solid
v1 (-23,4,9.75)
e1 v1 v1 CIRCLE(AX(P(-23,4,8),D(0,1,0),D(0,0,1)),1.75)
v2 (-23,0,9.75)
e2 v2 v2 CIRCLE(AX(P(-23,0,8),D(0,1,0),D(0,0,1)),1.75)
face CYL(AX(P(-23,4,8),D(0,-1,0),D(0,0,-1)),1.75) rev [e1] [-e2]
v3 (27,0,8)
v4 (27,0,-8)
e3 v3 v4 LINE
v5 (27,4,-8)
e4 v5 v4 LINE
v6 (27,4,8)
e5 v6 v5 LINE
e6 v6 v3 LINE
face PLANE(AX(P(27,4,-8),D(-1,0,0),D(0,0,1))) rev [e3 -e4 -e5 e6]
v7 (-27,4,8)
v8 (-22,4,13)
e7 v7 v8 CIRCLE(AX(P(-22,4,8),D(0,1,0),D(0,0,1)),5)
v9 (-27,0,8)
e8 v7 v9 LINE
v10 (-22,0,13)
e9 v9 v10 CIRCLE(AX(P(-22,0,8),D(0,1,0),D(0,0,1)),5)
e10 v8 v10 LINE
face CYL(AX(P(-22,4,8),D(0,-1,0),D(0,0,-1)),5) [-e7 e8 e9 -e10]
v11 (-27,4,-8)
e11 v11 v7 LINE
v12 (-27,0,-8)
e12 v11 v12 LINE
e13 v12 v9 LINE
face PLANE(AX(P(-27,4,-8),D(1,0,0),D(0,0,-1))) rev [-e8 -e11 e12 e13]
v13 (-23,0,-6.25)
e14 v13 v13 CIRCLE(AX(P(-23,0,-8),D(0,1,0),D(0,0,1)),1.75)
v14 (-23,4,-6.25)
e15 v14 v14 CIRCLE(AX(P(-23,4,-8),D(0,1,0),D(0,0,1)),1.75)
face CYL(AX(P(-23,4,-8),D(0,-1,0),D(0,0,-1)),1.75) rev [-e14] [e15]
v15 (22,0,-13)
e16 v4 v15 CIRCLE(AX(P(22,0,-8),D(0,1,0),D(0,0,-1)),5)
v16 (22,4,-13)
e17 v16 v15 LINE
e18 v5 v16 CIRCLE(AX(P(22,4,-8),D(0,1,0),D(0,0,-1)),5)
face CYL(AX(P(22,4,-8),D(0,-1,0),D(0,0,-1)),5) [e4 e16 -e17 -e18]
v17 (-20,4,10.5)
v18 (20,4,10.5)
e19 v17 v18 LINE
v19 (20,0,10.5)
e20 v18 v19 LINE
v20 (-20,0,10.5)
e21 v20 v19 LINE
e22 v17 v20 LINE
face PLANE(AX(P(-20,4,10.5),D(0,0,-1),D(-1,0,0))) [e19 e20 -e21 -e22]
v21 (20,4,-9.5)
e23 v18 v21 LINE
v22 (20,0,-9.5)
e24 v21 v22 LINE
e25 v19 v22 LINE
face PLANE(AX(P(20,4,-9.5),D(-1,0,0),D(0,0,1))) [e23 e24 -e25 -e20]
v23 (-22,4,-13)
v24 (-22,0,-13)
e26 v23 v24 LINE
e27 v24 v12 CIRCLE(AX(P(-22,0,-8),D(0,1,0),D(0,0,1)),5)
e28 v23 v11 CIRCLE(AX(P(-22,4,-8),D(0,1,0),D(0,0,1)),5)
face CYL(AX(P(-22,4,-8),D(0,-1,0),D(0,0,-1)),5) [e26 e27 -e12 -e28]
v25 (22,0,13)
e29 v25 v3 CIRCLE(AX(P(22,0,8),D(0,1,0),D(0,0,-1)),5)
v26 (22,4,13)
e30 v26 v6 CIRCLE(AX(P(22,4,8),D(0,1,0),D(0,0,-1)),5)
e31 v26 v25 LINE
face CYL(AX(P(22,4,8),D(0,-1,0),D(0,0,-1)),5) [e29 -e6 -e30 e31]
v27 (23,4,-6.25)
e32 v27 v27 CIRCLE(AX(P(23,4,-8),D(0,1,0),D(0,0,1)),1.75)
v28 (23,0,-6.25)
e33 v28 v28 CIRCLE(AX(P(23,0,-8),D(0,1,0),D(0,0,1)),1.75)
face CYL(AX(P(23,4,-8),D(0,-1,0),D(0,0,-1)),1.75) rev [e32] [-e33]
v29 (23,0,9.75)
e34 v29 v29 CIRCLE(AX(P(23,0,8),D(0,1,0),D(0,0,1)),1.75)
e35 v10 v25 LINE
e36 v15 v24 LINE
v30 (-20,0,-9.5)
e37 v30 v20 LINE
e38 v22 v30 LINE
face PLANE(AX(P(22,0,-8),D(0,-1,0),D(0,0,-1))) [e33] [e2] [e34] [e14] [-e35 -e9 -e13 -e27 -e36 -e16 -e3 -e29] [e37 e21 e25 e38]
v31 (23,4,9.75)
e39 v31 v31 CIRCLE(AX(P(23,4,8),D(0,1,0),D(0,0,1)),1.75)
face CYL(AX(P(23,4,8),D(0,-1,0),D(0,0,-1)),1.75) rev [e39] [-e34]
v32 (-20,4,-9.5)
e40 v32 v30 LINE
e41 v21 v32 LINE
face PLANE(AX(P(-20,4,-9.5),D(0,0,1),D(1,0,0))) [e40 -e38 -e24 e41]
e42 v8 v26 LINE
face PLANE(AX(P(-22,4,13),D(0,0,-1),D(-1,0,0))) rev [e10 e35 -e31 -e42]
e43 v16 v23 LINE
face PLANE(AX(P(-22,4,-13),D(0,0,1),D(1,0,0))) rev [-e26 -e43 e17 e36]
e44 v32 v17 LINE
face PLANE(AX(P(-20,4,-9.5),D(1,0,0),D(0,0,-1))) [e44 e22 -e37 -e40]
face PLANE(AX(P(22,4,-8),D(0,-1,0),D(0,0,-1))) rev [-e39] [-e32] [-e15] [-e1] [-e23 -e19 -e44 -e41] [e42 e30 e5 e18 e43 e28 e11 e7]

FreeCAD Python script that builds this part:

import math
import FreeCAD as App
import Part
import Sketcher

doc = App.newDocument("Part")
body = doc.addObject("PartDesign::Body", "Body")

sketch1 = body.newObject("Sketcher::SketchObject", "Sketch")
sketch1.AttachmentSupport = (doc.getObject("XZ_Plane"), [""])
sketch1.MapMode = "FlatFace"
sketch1.addGeometry([
    Part.LineSegment(App.Vector(22, -13, 0), App.Vector(-22, -13, 0)),
    Part.ArcOfCircle(Part.Circle(App.Vector(-22, -8, 0), App.Vector(0, 0, 1), 5), math.radians(180), math.radians(270)),
    Part.LineSegment(App.Vector(-27, -8, 0), App.Vector(-27, 8, 0)),
    Part.ArcOfCircle(Part.Circle(App.Vector(-22, 8, 0), App.Vector(0, 0, 1), 5), math.radians(90), math.radians(180)),
    Part.LineSegment(App.Vector(-22, 13, 0), App.Vector(22, 13, 0)),
    Part.ArcOfCircle(Part.Circle(App.Vector(22, 8, 0), App.Vector(0, 0, 1), 5), math.radians(0), math.radians(90)),
    Part.LineSegment(App.Vector(27, 8, 0), App.Vector(27, -8, 0)),
    Part.ArcOfCircle(Part.Circle(App.Vector(22, -8, 0), App.Vector(0, 0, 1), 5), math.radians(-90), math.radians(0)),
    Part.Circle(App.Vector(23, 8, 0), App.Vector(0, 0, 1), 1.8),
    Part.Circle(App.Vector(-23, 8, 0), App.Vector(0, 0, 1), 1.8),
    Part.LineSegment(App.Vector(-20, 10.5, 0), App.Vector(-20, -9.5, 0)),
    Part.LineSegment(App.Vector(-20, -9.5, 0), App.Vector(20, -9.5, 0)),
    Part.LineSegment(App.Vector(20, -9.5, 0), App.Vector(20, 10.5, 0)),
    Part.LineSegment(App.Vector(20, 10.5, 0), App.Vector(-20, 10.5, 0)),
    Part.Circle(App.Vector(23, -8, 0), App.Vector(0, 0, 1), 1.8),
    Part.Circle(App.Vector(-23, -8, 0), App.Vector(0, 0, 1), 1.8),
], False)
sketch1.addConstraint([
    Sketcher.Constraint("Tangent", 0, 2, 1, 2),
    Sketcher.Constraint("Tangent", 1, 1, 2, 1),
    Sketcher.Constraint("Tangent", 2, 2, 3, 2),
    Sketcher.Constraint("Tangent", 3, 1, 4, 1),
    Sketcher.Constraint("Tangent", 4, 2, 5, 2),
    Sketcher.Constraint("Tangent", 5, 1, 6, 1),
    Sketcher.Constraint("Tangent", 6, 2, 7, 2),
    Sketcher.Constraint("Tangent", 7, 1, 0, 1),
    Sketcher.Constraint("Coincident", 10, 2, 11, 1),
    Sketcher.Constraint("Coincident", 11, 2, 12, 1),
    Sketcher.Constraint("Coincident", 12, 2, 13, 1),
    Sketcher.Constraint("Coincident", 13, 2, 10, 1),
    Sketcher.Constraint("Horizontal", 0),
    Sketcher.Constraint("Vertical", 2),
    Sketcher.Constraint("Horizontal", 4),
    Sketcher.Constraint("Vertical", 6),
    Sketcher.Constraint("Vertical", 10),
    Sketcher.Constraint("Horizontal", 11),
    Sketcher.Constraint("Vertical", 12),
    Sketcher.Constraint("Horizontal", 13),
    Sketcher.Constraint("Equal", 1, 3),
    Sketcher.Constraint("Equal", 3, 5),
    Sketcher.Constraint("Equal", 5, 7),
    Sketcher.Constraint("Equal", 8, 9),
    Sketcher.Constraint("Equal", 9, 14),
    Sketcher.Constraint("Equal", 14, 15),
    Sketcher.Constraint("Symmetric", 1, 3, 5, 3, -1, 1),
    Sketcher.Constraint("Symmetric", 9, 3, 14, 3, -1, 1),
    Sketcher.Constraint("Symmetric", 8, 3, 15, 3, -1, 1),
    Sketcher.Constraint("Symmetric", 8, 3, 9, 3, -2),
    Sketcher.Constraint("Horizontal", 5, 3, 8, 3),
    Sketcher.Constraint("Radius", 1, 5.0),
    Sketcher.Constraint("Diameter", 8, 3.5),
    Sketcher.Constraint("DistanceX", 0, 2, 0, 1, 44.0),
    Sketcher.Constraint("DistanceX", 11, 1, 11, 2, 40.0),
    Sketcher.Constraint("DistanceY", 2, 1, 2, 2, 16.0),
    Sketcher.Constraint("DistanceY", 10, 2, 10, 1, 20.0),
    Sketcher.Constraint("DistanceX", -1, 1, 8, 3, 23.0),
    Sketcher.Constraint("DistanceX", 10, 2, -1, 1, 20.0),
    Sketcher.Constraint("DistanceY", 10, 2, -1, 1, 9.5),
])
pad1 = body.newObject("PartDesign::Pad", "Pad")
pad1.Profile = sketch1
pad1.Length = 4
pad1.Reversed = True

doc.recompute()
